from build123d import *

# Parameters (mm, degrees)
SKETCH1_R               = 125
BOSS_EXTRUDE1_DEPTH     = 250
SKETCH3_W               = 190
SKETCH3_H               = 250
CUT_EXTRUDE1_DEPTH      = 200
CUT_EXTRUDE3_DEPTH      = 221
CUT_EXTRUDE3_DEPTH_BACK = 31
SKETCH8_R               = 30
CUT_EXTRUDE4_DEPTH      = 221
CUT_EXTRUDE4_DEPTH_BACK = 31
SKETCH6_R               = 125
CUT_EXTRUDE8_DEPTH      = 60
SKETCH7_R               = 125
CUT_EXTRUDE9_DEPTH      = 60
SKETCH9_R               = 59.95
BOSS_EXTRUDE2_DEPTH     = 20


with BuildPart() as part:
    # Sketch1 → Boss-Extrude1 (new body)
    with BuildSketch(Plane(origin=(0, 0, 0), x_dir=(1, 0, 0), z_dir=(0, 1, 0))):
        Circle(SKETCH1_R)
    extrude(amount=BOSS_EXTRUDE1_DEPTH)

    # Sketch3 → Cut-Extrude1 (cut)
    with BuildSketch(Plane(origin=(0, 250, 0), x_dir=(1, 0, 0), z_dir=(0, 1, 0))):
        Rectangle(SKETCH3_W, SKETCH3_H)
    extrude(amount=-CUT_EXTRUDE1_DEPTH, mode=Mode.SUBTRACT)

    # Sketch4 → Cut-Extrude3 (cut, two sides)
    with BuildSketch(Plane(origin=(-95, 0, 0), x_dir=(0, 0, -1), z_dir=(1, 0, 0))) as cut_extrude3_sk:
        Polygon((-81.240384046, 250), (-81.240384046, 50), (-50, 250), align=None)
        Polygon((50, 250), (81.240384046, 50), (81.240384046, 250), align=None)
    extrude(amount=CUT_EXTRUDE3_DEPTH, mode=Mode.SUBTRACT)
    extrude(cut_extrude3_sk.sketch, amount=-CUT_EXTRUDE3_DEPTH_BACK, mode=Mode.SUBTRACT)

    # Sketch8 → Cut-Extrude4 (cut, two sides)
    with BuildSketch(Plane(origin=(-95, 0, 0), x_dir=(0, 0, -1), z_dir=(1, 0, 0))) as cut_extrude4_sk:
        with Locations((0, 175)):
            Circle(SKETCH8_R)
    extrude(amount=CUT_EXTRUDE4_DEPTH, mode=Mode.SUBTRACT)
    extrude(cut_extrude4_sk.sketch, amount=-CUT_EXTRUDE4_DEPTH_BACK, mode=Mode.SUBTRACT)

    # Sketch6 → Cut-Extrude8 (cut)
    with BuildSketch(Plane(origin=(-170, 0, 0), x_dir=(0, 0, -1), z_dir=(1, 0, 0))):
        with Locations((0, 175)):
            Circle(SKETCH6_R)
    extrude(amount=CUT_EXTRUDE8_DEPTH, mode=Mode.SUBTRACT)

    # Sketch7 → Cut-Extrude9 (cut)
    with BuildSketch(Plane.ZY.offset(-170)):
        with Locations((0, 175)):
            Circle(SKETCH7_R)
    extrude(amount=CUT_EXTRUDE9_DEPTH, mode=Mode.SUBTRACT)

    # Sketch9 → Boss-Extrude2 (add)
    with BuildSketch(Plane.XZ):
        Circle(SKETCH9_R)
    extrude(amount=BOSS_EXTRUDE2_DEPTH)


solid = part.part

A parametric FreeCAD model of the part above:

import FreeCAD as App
import Part
import Sketcher

V = App.Vector
Q = App.Units.Quantity


def add_polygon(sketch, points):
    """Adds a closed chain of lines whose ends are joined by coincident constraints."""
    first, n = sketch.GeometryCount, len(points)
    for a, b in zip(points, points[1:] + points[:1]):
        sketch.addGeometry(Part.LineSegment(App.Vector(*a, 0), App.Vector(*b, 0)), False)
    for i in range(n):
        sketch.addConstraint(Sketcher.Constraint("Coincident", first + i, 2, first + (i + 1) % n, 1))

doc = App.newDocument("Part")
body = doc.addObject("PartDesign::Body", "Body")

sketch1 = body.newObject("Sketcher::SketchObject", "Sketch")
sketch1.AttachmentSupport = (doc.getObject("XZ_Plane"), [""])
sketch1.MapMode = "FlatFace"
sketch1.addGeometry(Part.Circle(V(0, 0, 0), V(0, 0, 1), 125), False)
sketch1.addConstraint([
    Sketcher.Constraint("Coincident", 0, 3, -1, 1),
    Sketcher.Constraint("Diameter", 0, Q("250 mm")),
])
pad1 = body.newObject("PartDesign::Pad", "Pad")
pad1.Profile = sketch1
pad1.Length = 250
pad1.Reversed = True

sketch2 = body.newObject("Sketcher::SketchObject", "Sketch001")
sketch2.AttachmentSupport = (doc.getObject("XZ_Plane"), [""])
sketch2.MapMode = "FlatFace"
sketch2.AttachmentOffset = App.Placement(V(0, 0, -250), App.Rotation())
add_polygon(sketch2, [(-95, -125), (-95, 125), (95, 125), (95, -125)])
sketch2.addConstraint([
    Sketcher.Constraint("Vertical", 0),
    Sketcher.Constraint("Horizontal", 1),
    Sketcher.Constraint("Vertical", 2),
    Sketcher.Constraint("Horizontal", 3),
    Sketcher.Constraint("Symmetric", 0, 2, 2, 2, -1, 1),
    Sketcher.Constraint("DistanceX", 1, 1, 1, 2, Q("190 mm")),
    Sketcher.Constraint("DistanceY", 0, 1, 0, 2, Q("250 mm")),
])
pocket1 = body.newObject("PartDesign::Pocket", "Pocket")
pocket1.Profile = sketch2
pocket1.Length = 200
pocket1.Reversed = True

sketch3 = body.newObject("Sketcher::SketchObject", "Sketch002")
sketch3.AttachmentSupport = (doc.getObject("YZ_Plane"), [""])
sketch3.MapMode = "FlatFace"
sketch3.AttachmentOffset = App.Placement(V(0, 0, -95), App.Rotation())
add_polygon(sketch3, [(250, 81), (50, 81), (250, 50)])
add_polygon(sketch3, [(250, -50), (50, -81), (250, -81)])
sketch3.addConstraint([
    Sketcher.Constraint("Horizontal", 0),
    Sketcher.Constraint("Vertical", 2),
    Sketcher.Constraint("Horizontal", 4),
    Sketcher.Constraint("Vertical", 5),
    Sketcher.Constraint("Symmetric", 0, 2, 3, 2, -1),
    Sketcher.Constraint("Symmetric", 1, 2, 5, 2, -1),
    Sketcher.Constraint("DistanceX", 0, 2, 0, 1, Q("200 mm")),
    Sketcher.Constraint("DistanceX", -1, 1, 0, 2, Q("50 mm")),
    Sketcher.Constraint("DistanceY", -1, 1, 1, 2, Q("50 mm")),
    Sketcher.Constraint("Distance", 1, Q("202.4252 mm")),
])
pocket2 = body.newObject("PartDesign::Pocket", "Pocket001")
pocket2.Profile = sketch3
pocket2.Type = "ThroughAll"
pocket2.Midplane = True

sketch4 = body.newObject("Sketcher::SketchObject", "Sketch003")
sketch4.AttachmentSupport = (doc.getObject("YZ_Plane"), [""])
sketch4.MapMode = "FlatFace"
sketch4.AttachmentOffset = App.Placement(V(0, 0, -95), App.Rotation())
sketch4.addGeometry(Part.Circle(V(175, 0, 0), V(0, 0, 1), 30), False)
sketch4.addConstraint([
    Sketcher.Constraint("PointOnObject", 0, 3, -1),
    Sketcher.Constraint("Diameter", 0, Q("60 mm")),
    Sketcher.Constraint("DistanceX", -1, 1, 0, 3, Q("175 mm")),
])
pocket3 = body.newObject("PartDesign::Pocket", "Pocket002")
pocket3.Profile = sketch4
pocket3.Type = "ThroughAll"
pocket3.Midplane = True

sketch5 = body.newObject("Sketcher::SketchObject", "Sketch004")
sketch5.AttachmentSupport = (doc.getObject("YZ_Plane"), [""])
sketch5.MapMode = "FlatFace"
sketch5.AttachmentOffset = App.Placement(V(0, 0, -170), App.Rotation())
sketch5.addGeometry(Part.Circle(V(175, 0, 0), V(0, 0, 1), 125), False)
sketch5.addConstraint([
    Sketcher.Constraint("PointOnObject", 0, 3, -1),
    Sketcher.Constraint("Diameter", 0, Q("250 mm")),
    Sketcher.Constraint("DistanceX", -1, 1, 0, 3, Q("175 mm")),
])
pocket4 = body.newObject("PartDesign::Pocket", "Pocket003")
pocket4.Profile = sketch5
pocket4.Length = 60
pocket4.Reversed = True

sketch6 = body.newObject("Sketcher::SketchObject", "Sketch005")
sketch6.AttachmentSupport = (doc.getObject("YZ_Plane"), [""])
sketch6.MapMode = "FlatFace"
sketch6.AttachmentOffset = App.Placement(V(0, 0, 170), App.Rotation())
sketch6.addGeometry(Part.Circle(V(175, 0, 0), V(0, 0, 1), 125), False)
sketch6.addConstraint([
    Sketcher.Constraint("PointOnObject", 0, 3, -1),
    Sketcher.Constraint("Diameter", 0, Q("250 mm")),
    Sketcher.Constraint("DistanceX", -1, 1, 0, 3, Q("175 mm")),
])
pocket5 = body.newObject("PartDesign::Pocket", "Pocket004")
pocket5.Profile = sketch6
pocket5.Length = 60

sketch7 = body.newObject("Sketcher::SketchObject", "Sketch006")
sketch7.AttachmentSupport = (doc.getObject("XZ_Plane"), [""])
sketch7.MapMode = "FlatFace"
sketch7.addGeometry(Part.Circle(V(0, 0, 0), V(0, 0, 1), 60), False)
sketch7.addConstraint([
    Sketcher.Constraint("Coincident", 0, 3, -1, 1),
    Sketcher.Constraint("Diameter", 0, Q("119.9 mm")),
])
pad2 = body.newObject("PartDesign::Pad", "Pad001")
pad2.Profile = sketch7
pad2.Length = 20

doc.recompute()
